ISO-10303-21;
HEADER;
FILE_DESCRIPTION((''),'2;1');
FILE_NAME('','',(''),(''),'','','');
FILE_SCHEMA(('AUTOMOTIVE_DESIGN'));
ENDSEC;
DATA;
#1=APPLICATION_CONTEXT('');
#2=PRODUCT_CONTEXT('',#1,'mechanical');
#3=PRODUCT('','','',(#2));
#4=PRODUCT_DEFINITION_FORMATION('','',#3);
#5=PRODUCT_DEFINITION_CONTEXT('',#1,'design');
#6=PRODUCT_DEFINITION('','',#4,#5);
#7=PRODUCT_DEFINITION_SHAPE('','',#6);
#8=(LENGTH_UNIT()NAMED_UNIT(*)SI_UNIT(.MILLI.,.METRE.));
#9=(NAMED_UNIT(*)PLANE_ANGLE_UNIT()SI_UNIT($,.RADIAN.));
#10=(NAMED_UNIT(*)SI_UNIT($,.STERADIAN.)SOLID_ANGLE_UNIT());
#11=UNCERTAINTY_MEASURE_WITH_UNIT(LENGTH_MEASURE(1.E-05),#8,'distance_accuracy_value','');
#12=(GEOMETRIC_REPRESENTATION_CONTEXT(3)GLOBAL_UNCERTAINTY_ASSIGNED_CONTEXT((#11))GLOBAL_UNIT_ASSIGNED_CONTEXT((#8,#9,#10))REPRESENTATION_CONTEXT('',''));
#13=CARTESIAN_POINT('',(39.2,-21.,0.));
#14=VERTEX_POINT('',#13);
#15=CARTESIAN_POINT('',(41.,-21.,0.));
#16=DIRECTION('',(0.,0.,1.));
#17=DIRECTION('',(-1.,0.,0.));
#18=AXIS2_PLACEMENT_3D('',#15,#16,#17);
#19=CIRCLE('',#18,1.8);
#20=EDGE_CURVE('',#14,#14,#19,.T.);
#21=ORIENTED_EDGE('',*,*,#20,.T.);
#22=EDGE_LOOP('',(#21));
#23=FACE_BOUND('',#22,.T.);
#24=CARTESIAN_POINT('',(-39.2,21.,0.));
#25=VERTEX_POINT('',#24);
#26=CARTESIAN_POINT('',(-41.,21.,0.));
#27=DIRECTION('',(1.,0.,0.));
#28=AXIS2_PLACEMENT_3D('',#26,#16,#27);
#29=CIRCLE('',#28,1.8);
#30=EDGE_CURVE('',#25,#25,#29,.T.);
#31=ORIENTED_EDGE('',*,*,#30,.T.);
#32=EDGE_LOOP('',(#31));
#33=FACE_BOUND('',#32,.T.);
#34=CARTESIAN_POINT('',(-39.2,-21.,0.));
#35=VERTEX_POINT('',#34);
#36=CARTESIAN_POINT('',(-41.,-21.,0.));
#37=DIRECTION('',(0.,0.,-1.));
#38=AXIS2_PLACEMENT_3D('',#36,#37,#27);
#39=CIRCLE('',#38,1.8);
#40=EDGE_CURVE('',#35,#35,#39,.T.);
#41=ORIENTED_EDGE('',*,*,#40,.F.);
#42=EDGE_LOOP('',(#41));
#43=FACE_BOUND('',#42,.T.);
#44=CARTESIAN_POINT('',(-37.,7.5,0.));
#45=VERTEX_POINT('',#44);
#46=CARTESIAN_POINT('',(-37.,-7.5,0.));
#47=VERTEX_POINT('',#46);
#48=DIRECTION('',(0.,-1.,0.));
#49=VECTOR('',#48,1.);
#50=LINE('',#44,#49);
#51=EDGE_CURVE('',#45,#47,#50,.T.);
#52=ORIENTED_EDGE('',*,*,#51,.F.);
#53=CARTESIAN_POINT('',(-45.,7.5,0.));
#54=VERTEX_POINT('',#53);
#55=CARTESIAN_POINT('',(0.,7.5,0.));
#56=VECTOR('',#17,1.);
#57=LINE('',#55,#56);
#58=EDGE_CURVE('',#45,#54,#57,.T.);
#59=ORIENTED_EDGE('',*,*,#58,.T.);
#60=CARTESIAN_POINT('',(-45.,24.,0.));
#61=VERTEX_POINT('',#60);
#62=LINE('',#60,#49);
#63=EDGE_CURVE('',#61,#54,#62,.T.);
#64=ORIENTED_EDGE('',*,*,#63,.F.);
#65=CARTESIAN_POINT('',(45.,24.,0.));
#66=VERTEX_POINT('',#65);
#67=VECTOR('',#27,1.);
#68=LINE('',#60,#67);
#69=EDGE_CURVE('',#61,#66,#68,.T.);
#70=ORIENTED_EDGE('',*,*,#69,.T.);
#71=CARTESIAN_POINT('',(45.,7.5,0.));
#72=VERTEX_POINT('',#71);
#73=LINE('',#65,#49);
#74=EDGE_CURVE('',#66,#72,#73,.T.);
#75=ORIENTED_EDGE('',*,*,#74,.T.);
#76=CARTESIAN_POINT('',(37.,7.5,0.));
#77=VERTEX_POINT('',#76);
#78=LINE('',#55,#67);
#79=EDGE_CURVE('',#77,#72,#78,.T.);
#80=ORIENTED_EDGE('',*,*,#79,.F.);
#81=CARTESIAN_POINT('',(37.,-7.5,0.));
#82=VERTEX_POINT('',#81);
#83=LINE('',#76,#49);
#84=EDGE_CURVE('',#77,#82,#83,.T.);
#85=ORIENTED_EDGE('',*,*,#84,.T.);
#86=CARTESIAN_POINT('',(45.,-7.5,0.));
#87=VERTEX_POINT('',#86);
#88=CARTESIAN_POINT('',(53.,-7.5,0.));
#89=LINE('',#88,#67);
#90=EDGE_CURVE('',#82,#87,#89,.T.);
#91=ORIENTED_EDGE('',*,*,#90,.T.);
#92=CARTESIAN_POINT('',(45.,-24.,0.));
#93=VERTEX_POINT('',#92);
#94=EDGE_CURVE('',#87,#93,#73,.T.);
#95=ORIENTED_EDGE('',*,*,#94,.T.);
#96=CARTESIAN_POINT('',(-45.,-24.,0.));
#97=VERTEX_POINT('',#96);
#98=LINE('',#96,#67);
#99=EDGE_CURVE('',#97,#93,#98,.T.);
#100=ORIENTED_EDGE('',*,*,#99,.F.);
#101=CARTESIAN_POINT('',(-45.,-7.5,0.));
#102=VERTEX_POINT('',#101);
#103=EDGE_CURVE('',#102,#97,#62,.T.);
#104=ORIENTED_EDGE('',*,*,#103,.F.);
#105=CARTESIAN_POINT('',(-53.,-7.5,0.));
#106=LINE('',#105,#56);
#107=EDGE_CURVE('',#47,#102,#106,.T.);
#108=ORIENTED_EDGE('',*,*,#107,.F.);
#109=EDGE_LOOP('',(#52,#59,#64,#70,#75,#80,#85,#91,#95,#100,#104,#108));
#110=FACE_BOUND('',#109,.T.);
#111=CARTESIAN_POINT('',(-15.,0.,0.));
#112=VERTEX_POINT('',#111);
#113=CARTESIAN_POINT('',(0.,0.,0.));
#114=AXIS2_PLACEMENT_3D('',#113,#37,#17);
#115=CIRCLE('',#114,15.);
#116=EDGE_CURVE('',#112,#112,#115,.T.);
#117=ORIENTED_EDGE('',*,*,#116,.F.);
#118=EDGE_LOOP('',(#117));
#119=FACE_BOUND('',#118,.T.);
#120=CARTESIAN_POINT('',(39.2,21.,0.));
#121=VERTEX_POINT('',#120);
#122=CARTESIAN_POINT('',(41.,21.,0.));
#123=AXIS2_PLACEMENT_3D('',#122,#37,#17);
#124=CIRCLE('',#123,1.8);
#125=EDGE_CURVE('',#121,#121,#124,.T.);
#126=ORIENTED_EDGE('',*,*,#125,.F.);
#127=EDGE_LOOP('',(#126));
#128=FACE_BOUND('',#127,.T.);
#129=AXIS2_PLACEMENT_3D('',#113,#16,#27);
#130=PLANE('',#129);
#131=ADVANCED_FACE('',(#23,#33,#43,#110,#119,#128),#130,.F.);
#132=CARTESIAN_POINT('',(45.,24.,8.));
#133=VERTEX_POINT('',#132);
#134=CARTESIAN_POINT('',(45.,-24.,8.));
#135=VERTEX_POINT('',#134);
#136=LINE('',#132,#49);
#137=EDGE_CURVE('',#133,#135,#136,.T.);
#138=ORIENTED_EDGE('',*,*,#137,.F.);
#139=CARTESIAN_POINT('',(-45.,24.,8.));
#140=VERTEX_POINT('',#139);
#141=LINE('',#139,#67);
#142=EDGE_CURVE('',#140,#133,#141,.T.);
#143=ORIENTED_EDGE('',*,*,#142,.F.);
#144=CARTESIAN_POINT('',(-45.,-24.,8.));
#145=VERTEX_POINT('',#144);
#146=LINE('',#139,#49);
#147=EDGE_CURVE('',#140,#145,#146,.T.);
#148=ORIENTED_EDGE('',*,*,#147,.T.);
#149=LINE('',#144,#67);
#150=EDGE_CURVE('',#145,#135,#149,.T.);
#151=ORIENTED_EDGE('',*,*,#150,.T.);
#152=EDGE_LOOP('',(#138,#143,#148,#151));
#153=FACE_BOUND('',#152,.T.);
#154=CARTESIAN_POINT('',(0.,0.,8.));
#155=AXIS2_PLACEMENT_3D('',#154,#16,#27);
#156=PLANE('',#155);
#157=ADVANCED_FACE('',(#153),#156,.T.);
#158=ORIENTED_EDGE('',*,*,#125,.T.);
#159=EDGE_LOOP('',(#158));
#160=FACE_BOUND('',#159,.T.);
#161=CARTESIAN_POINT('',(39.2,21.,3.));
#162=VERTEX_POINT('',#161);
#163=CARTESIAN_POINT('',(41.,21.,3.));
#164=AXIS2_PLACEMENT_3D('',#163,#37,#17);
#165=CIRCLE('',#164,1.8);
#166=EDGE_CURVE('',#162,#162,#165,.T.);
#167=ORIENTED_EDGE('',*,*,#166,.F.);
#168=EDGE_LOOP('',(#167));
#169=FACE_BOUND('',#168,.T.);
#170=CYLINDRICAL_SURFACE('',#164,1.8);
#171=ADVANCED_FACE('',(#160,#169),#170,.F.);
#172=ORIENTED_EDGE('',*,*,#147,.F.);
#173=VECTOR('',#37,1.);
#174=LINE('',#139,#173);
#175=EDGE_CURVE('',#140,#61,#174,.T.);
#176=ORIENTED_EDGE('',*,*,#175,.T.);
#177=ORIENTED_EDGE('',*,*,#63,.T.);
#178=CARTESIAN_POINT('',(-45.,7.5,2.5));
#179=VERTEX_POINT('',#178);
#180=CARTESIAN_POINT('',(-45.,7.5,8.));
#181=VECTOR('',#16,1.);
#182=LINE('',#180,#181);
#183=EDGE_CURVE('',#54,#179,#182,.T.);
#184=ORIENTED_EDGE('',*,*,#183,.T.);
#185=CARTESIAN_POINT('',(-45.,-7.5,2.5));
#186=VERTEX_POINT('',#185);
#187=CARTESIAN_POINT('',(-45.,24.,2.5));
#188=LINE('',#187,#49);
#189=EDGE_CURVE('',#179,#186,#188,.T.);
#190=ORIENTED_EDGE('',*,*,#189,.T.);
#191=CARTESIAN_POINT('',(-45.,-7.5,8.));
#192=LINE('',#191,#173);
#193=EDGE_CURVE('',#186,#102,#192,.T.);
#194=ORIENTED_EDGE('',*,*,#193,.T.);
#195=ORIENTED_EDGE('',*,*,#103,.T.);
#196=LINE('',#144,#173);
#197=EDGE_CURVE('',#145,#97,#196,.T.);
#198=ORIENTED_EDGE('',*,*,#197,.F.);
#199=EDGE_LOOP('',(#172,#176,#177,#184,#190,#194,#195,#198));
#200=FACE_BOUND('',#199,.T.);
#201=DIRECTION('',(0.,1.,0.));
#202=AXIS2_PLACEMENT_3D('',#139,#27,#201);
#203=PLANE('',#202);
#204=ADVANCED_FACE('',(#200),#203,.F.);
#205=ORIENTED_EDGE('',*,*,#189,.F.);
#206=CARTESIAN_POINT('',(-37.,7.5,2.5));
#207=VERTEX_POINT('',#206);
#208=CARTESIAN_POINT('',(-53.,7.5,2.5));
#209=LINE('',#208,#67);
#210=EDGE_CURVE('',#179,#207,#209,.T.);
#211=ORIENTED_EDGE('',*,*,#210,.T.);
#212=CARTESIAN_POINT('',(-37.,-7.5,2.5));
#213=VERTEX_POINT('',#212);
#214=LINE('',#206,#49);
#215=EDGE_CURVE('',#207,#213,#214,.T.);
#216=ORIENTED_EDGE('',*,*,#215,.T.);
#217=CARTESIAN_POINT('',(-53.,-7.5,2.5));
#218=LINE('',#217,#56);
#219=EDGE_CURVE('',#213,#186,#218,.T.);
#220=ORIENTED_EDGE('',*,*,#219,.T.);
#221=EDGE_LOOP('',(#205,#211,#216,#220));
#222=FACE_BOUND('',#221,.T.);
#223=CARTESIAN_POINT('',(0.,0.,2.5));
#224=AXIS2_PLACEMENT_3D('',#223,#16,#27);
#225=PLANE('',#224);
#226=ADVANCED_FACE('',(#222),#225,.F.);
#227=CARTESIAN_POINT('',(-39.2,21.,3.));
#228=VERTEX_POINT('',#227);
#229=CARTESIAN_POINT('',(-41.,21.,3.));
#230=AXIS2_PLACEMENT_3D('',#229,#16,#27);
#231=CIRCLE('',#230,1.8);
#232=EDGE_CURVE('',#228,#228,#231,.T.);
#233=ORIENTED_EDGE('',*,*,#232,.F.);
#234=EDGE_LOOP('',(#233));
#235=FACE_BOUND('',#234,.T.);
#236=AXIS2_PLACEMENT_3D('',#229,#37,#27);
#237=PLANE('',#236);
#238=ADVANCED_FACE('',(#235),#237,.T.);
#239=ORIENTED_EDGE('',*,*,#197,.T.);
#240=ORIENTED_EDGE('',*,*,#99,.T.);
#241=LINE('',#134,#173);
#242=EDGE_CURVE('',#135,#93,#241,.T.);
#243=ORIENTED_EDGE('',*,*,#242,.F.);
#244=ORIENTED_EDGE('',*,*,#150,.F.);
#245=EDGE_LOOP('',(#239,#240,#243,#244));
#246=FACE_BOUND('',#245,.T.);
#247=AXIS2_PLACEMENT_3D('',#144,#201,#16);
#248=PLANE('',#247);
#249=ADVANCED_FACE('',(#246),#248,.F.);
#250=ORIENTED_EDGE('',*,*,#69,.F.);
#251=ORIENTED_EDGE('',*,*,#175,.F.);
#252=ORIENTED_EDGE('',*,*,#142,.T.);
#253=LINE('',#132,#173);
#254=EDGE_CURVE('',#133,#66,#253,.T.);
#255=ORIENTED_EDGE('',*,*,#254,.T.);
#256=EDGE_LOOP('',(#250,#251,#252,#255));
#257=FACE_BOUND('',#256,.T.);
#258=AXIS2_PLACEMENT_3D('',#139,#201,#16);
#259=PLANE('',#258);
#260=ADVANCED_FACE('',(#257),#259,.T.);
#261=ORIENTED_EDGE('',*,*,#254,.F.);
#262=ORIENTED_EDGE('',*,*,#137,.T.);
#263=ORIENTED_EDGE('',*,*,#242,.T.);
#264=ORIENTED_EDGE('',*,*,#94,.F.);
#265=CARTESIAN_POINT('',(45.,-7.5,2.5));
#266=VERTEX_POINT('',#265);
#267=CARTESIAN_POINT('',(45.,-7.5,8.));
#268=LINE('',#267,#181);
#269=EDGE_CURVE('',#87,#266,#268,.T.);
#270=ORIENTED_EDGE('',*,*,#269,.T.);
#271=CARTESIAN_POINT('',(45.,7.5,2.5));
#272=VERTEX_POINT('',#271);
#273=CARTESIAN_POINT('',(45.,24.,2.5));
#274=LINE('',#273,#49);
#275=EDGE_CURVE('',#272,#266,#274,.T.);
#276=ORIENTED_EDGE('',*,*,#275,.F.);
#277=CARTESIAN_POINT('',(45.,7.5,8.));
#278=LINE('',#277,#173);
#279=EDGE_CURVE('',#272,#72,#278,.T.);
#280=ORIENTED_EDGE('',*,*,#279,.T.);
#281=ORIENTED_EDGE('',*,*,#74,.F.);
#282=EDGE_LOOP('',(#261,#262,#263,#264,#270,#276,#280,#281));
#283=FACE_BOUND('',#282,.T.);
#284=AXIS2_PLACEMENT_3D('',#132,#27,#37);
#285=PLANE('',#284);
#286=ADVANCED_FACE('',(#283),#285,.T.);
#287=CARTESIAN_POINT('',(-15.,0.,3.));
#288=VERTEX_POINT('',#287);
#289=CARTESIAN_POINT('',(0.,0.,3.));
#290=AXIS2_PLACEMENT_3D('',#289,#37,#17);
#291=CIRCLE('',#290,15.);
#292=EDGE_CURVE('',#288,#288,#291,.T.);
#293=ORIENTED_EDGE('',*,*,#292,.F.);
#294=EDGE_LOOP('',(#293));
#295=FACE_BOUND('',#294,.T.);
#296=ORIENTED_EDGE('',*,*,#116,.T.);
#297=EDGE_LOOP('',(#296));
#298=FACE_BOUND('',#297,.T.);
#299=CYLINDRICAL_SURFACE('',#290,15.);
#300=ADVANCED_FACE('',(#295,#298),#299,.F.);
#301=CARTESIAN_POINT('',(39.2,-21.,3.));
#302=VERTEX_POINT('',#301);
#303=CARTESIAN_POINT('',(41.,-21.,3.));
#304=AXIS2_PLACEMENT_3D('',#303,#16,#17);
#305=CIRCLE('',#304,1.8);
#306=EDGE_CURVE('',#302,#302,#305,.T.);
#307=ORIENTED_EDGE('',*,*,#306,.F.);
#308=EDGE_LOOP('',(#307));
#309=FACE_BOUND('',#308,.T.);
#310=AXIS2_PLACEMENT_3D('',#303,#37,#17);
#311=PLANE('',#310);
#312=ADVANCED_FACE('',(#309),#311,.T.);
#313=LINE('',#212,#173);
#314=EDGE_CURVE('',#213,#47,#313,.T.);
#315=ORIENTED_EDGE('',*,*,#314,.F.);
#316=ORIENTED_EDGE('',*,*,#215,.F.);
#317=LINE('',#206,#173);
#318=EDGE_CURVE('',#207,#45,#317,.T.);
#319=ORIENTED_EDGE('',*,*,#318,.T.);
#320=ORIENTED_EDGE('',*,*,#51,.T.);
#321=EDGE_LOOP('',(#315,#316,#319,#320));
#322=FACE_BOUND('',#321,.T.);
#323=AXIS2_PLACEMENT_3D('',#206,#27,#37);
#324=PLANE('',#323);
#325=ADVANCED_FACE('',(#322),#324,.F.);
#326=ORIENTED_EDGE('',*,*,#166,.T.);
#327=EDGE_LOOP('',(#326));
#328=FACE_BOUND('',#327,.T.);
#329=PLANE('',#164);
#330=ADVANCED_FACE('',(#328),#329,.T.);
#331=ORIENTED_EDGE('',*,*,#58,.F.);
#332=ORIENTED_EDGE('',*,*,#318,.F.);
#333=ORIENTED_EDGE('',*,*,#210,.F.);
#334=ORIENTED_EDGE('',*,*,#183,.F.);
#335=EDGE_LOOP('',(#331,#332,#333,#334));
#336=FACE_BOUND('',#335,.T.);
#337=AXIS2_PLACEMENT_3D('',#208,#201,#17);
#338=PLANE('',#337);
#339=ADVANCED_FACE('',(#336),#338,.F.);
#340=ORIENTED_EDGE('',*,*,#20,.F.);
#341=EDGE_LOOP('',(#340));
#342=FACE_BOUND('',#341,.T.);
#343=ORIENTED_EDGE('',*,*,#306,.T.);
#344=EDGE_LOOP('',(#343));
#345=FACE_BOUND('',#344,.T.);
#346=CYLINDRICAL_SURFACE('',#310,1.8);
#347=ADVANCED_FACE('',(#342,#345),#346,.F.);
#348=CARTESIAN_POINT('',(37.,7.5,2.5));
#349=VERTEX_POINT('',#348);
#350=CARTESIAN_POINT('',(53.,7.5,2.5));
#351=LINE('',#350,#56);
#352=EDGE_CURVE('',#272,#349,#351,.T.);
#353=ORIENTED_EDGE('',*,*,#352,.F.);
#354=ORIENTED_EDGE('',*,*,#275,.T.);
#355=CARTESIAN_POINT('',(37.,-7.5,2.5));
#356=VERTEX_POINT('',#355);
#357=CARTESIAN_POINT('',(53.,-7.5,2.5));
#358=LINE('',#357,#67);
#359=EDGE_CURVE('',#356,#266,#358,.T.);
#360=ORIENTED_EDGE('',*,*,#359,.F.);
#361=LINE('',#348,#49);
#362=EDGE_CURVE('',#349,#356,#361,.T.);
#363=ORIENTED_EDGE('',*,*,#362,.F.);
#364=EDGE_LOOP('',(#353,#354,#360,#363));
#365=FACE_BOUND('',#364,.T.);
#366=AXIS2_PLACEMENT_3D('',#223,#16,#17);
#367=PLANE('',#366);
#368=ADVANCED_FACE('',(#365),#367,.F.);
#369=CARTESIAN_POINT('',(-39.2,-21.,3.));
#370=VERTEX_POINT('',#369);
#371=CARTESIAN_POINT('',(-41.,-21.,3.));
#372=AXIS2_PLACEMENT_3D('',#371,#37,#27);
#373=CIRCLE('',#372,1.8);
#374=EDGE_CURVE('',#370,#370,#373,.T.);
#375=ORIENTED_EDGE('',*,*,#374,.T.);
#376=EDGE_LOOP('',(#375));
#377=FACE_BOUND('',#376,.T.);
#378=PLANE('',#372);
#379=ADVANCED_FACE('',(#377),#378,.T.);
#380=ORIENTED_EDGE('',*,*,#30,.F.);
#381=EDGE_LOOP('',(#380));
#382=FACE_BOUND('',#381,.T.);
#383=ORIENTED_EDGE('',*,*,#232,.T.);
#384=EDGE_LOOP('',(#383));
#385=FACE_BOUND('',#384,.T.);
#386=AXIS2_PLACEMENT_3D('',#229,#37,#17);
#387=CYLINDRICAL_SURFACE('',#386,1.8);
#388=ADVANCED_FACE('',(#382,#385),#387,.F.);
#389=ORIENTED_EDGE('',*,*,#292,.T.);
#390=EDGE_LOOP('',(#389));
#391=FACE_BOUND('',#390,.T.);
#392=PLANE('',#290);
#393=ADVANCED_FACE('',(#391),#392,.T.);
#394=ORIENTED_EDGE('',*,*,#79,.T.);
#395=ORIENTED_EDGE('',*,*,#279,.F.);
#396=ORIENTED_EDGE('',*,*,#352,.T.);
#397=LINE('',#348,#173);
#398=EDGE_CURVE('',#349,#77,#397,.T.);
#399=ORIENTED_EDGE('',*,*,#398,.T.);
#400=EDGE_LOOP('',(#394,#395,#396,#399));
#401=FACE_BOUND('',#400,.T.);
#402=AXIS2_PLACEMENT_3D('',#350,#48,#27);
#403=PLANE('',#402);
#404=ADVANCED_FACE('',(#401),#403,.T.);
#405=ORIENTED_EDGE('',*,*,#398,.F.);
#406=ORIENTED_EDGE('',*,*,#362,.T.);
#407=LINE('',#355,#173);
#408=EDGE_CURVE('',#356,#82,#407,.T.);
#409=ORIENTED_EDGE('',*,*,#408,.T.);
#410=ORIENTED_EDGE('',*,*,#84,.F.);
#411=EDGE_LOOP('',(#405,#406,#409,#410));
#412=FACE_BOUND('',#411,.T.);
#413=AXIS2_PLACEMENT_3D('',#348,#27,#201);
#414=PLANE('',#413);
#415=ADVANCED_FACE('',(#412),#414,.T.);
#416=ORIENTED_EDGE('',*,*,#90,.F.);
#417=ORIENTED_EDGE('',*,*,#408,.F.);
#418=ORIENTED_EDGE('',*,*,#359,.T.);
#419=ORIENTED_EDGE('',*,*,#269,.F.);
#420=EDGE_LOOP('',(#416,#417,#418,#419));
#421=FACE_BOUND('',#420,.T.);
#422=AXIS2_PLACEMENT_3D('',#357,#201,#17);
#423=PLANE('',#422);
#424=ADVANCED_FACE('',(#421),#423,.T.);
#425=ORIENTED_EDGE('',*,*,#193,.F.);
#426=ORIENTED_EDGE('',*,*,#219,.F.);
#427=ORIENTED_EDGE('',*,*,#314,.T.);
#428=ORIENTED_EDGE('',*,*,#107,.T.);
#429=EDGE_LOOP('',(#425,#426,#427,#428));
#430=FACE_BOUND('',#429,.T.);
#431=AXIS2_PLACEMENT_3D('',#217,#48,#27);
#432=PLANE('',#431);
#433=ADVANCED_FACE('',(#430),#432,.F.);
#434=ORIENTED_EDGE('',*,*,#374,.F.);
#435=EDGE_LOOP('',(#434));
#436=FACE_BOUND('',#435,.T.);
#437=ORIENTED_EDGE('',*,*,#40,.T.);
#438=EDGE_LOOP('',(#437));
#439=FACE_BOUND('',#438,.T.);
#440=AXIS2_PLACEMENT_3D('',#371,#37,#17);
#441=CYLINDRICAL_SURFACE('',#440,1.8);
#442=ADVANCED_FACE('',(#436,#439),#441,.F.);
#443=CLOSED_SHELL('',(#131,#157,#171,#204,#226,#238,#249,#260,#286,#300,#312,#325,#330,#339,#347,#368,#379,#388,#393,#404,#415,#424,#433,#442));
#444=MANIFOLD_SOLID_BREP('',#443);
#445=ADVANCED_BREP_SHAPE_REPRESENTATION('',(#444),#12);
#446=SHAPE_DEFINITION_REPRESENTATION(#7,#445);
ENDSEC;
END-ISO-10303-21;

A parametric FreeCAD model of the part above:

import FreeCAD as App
import Part
import Sketcher

V = App.Vector


def add_polygon(sketch, points):
    """Adds a closed chain of lines whose ends are joined by coincident constraints."""
    first, n = sketch.GeometryCount, len(points)
    for a, b in zip(points, points[1:] + points[:1]):
        sketch.addGeometry(Part.LineSegment(App.Vector(*a, 0), App.Vector(*b, 0)), False)
    for i in range(n):
        sketch.addConstraint(Sketcher.Constraint("Coincident", first + i, 2, first + (i + 1) % n, 1))

doc = App.newDocument("Part")
body = doc.addObject("PartDesign::Body", "Body")

# Sketch on XY plane
sketch1 = body.newObject("Sketcher::SketchObject", "Sketch")
sketch1.AttachmentSupport = (doc.getObject("XY_Plane"), [""])
sketch1.MapMode = "FlatFace"
add_polygon(sketch1, [(-45, 24), (-45, -24), (45, -24), (45, 24)])  # lines 0-3
sketch1.addConstraint([
    Sketcher.Constraint("Vertical", 0),
    Sketcher.Constraint("Horizontal", 1),
    Sketcher.Constraint("Vertical", 2),
    Sketcher.Constraint("Horizontal", 3),
    Sketcher.Constraint("Symmetric", 0, 2, 2, 2, -1, 1),
    Sketcher.Constraint("DistanceX", 1, 1, 1, 2, 90.0),
    Sketcher.Constraint("DistanceY", 0, 2, 0, 1, 48.0),
])
pad1 = body.newObject("PartDesign::Pad", "Pad")
pad1.Profile = sketch1
pad1.Length = 8

# Sketch on XY plane
sketch2 = body.newObject("Sketcher::SketchObject", "Sketch001")
sketch2.AttachmentSupport = (doc.getObject("XY_Plane"), [""])
sketch2.MapMode = "FlatFace"
sketch2.addGeometry(Part.Circle(V(0, 0, 0), V(0, 0, 1), 15), False)
sketch2.addConstraint([
    Sketcher.Constraint("Coincident", 0, 3, -1, 1),
    Sketcher.Constraint("Diameter", 0, 30.0),
])
pocket1 = body.newObject("PartDesign::Pocket", "Pocket")
pocket1.Profile = sketch2
pocket1.Length = 3
pocket1.Reversed = True

# Sketch on XY plane
sketch3 = body.newObject("Sketcher::SketchObject", "Sketch002")
sketch3.AttachmentSupport = (doc.getObject("XY_Plane"), [""])
sketch3.MapMode = "FlatFace"
sketch3.addGeometry(Part.Circle(V(41, 21, 0), V(0, 0, 1), 1.8), False)
sketch3.addConstraint([
    Sketcher.Constraint("Diameter", 0, 3.6),
    Sketcher.Constraint("DistanceX", -1, 1, 0, 3, 41.0),
    Sketcher.Constraint("DistanceY", -1, 1, 0, 3, 21.0),
])
pocket2 = body.newObject("PartDesign::Pocket", "Pocket001")
pocket2.Profile = sketch3
pocket2.Length = 3
pocket2.Reversed = True
doc.recompute()

mirrored = body.newObject("PartDesign::Mirrored", "Mirrored")
mirrored.Originals = [pocket2]
mirrored.MirrorPlane = (doc.getObject("XZ_Plane"), [""])
body.Tip = mirrored
doc.recompute()

mirrored2 = body.newObject("PartDesign::Mirrored", "Mirrored001")
mirrored2.Originals = [pocket2]
mirrored2.MirrorPlane = (doc.getObject("YZ_Plane"), [""])
body.Tip = mirrored2

# Sketch on XY plane
sketch4 = body.newObject("Sketcher::SketchObject", "Sketch003")
sketch4.AttachmentSupport = (doc.getObject("XY_Plane"), [""])
sketch4.MapMode = "FlatFace"
sketch4.addGeometry(Part.Circle(V(-41, -21, 0), V(0, 0, 1), 1.8), False)
sketch4.addConstraint([
    Sketcher.Constraint("Diameter", 0, 3.6),
    Sketcher.Constraint("DistanceX", 0, 3, -1, 1, 41.0),
    Sketcher.Constraint("DistanceY", 0, 3, -1, 1, 21.0),
])
pocket3 = body.newObject("PartDesign::Pocket", "Pocket002")
pocket3.Profile = sketch4
pocket3.Length = 3
pocket3.Reversed = True

# Sketch on XY plane
sketch5 = body.newObject("Sketcher::SketchObject", "Sketch004")
sketch5.AttachmentSupport = (doc.getObject("XY_Plane"), [""])
sketch5.MapMode = "FlatFace"
add_polygon(sketch5, [(-37, 8), (-37, -8), (-53, -8), (-53, 8)])  # lines 0-3
sketch5.addConstraint([
    Sketcher.Constraint("Vertical", 0),
    Sketcher.Constraint("Horizontal", 1),
    Sketcher.Constraint("Vertical", 2),
    Sketcher.Constraint("Horizontal", 3),
    Sketcher.Constraint("DistanceX", 1, 2, 1, 1, 16.0),
    Sketcher.Constraint("DistanceY", 0, 2, 0, 1, 15.0),
    Sketcher.Constraint("DistanceX", 0, 2, -1, 1, 37.0),
    Sketcher.Constraint("DistanceY", 0, 2, -1, 1, 7.5),
])
pocket4 = body.newObject("PartDesign::Pocket", "Pocket003")
pocket4.Profile = sketch5
pocket4.Length = 2.5
pocket4.Reversed = True
doc.recompute()

mirrored3 = body.newObject("PartDesign::Mirrored", "Mirrored002")
mirrored3.Originals = [pocket4]
mirrored3.MirrorPlane = (doc.getObject("YZ_Plane"), [""])
body.Tip = mirrored3

doc.recompute()
